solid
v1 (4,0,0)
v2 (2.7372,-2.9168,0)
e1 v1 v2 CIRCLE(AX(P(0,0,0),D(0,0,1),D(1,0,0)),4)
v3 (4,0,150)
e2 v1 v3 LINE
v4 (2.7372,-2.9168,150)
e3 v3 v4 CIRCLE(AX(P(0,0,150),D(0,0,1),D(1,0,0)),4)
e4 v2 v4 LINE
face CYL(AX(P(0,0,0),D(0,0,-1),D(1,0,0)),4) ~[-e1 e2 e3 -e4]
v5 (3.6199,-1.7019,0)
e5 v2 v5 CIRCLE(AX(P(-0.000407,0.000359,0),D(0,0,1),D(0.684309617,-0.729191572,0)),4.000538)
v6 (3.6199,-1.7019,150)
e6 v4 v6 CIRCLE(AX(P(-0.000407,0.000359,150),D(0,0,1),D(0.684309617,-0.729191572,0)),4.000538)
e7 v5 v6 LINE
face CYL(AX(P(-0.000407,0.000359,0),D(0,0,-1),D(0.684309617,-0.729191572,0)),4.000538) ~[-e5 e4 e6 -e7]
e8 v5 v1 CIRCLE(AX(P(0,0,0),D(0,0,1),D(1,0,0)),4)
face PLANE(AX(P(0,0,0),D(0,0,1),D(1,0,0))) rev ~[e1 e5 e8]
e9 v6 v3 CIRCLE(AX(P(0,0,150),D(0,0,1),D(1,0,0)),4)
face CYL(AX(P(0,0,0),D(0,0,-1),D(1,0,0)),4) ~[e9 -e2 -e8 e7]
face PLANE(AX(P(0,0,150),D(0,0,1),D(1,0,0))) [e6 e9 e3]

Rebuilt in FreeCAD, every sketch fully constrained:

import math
import FreeCAD as App
import Part
import Sketcher

V = App.Vector

doc = App.newDocument("Part")
params = doc.addObject("Spreadsheet::Sheet", "Params")
for row, (alias, value) in enumerate([
    ("sketch1_radius", "4 mm"),
    ("pad1_length", "150 mm"),
], start=1):
    params.set(f"A{row}", alias)
    params.set(f"B{row}", "=" + value)
    params.setAlias(f"B{row}", alias)

body = doc.addObject("PartDesign::Body", "Body")

sketch1 = body.newObject("Sketcher::SketchObject", "Sketch")
sketch1.AttachmentSupport = (doc.getObject("XY_Plane"), [""])
sketch1.MapMode = "FlatFace"
sketch1.addGeometry([
    Part.ArcOfCircle(Part.Circle(V(0, 0, 0), V(0, 0, 1), 4), math.radians(-25), math.radians(313)),
    Part.ArcOfCircle(Part.Circle(V(0, 0, 0), V(0, 0, 1), 4), math.radians(-47), math.radians(-25)),
], False)
sketch1.addConstraint([
    Sketcher.Constraint("Tangent", 0, 1, 1, 2),
    Sketcher.Constraint("Coincident", 1, 1, 0, 2),
    Sketcher.Constraint("Coincident", 0, 3, -1, 1),
    Sketcher.Constraint("Radius", 0, 4.0),
    Sketcher.Constraint("DistanceX", -1, 1, 0, 1, 3.62),
    Sketcher.Constraint("DistanceY", 1, 1, 0, 1, 1.215),
])
sketch1.setExpression("Constraints[3]", "Params.sketch1_radius")
pad1 = body.newObject("PartDesign::Pad", "Pad")
pad1.Profile = sketch1
pad1.setExpression("Length", "Params.pad1_length")

doc.recompute()
